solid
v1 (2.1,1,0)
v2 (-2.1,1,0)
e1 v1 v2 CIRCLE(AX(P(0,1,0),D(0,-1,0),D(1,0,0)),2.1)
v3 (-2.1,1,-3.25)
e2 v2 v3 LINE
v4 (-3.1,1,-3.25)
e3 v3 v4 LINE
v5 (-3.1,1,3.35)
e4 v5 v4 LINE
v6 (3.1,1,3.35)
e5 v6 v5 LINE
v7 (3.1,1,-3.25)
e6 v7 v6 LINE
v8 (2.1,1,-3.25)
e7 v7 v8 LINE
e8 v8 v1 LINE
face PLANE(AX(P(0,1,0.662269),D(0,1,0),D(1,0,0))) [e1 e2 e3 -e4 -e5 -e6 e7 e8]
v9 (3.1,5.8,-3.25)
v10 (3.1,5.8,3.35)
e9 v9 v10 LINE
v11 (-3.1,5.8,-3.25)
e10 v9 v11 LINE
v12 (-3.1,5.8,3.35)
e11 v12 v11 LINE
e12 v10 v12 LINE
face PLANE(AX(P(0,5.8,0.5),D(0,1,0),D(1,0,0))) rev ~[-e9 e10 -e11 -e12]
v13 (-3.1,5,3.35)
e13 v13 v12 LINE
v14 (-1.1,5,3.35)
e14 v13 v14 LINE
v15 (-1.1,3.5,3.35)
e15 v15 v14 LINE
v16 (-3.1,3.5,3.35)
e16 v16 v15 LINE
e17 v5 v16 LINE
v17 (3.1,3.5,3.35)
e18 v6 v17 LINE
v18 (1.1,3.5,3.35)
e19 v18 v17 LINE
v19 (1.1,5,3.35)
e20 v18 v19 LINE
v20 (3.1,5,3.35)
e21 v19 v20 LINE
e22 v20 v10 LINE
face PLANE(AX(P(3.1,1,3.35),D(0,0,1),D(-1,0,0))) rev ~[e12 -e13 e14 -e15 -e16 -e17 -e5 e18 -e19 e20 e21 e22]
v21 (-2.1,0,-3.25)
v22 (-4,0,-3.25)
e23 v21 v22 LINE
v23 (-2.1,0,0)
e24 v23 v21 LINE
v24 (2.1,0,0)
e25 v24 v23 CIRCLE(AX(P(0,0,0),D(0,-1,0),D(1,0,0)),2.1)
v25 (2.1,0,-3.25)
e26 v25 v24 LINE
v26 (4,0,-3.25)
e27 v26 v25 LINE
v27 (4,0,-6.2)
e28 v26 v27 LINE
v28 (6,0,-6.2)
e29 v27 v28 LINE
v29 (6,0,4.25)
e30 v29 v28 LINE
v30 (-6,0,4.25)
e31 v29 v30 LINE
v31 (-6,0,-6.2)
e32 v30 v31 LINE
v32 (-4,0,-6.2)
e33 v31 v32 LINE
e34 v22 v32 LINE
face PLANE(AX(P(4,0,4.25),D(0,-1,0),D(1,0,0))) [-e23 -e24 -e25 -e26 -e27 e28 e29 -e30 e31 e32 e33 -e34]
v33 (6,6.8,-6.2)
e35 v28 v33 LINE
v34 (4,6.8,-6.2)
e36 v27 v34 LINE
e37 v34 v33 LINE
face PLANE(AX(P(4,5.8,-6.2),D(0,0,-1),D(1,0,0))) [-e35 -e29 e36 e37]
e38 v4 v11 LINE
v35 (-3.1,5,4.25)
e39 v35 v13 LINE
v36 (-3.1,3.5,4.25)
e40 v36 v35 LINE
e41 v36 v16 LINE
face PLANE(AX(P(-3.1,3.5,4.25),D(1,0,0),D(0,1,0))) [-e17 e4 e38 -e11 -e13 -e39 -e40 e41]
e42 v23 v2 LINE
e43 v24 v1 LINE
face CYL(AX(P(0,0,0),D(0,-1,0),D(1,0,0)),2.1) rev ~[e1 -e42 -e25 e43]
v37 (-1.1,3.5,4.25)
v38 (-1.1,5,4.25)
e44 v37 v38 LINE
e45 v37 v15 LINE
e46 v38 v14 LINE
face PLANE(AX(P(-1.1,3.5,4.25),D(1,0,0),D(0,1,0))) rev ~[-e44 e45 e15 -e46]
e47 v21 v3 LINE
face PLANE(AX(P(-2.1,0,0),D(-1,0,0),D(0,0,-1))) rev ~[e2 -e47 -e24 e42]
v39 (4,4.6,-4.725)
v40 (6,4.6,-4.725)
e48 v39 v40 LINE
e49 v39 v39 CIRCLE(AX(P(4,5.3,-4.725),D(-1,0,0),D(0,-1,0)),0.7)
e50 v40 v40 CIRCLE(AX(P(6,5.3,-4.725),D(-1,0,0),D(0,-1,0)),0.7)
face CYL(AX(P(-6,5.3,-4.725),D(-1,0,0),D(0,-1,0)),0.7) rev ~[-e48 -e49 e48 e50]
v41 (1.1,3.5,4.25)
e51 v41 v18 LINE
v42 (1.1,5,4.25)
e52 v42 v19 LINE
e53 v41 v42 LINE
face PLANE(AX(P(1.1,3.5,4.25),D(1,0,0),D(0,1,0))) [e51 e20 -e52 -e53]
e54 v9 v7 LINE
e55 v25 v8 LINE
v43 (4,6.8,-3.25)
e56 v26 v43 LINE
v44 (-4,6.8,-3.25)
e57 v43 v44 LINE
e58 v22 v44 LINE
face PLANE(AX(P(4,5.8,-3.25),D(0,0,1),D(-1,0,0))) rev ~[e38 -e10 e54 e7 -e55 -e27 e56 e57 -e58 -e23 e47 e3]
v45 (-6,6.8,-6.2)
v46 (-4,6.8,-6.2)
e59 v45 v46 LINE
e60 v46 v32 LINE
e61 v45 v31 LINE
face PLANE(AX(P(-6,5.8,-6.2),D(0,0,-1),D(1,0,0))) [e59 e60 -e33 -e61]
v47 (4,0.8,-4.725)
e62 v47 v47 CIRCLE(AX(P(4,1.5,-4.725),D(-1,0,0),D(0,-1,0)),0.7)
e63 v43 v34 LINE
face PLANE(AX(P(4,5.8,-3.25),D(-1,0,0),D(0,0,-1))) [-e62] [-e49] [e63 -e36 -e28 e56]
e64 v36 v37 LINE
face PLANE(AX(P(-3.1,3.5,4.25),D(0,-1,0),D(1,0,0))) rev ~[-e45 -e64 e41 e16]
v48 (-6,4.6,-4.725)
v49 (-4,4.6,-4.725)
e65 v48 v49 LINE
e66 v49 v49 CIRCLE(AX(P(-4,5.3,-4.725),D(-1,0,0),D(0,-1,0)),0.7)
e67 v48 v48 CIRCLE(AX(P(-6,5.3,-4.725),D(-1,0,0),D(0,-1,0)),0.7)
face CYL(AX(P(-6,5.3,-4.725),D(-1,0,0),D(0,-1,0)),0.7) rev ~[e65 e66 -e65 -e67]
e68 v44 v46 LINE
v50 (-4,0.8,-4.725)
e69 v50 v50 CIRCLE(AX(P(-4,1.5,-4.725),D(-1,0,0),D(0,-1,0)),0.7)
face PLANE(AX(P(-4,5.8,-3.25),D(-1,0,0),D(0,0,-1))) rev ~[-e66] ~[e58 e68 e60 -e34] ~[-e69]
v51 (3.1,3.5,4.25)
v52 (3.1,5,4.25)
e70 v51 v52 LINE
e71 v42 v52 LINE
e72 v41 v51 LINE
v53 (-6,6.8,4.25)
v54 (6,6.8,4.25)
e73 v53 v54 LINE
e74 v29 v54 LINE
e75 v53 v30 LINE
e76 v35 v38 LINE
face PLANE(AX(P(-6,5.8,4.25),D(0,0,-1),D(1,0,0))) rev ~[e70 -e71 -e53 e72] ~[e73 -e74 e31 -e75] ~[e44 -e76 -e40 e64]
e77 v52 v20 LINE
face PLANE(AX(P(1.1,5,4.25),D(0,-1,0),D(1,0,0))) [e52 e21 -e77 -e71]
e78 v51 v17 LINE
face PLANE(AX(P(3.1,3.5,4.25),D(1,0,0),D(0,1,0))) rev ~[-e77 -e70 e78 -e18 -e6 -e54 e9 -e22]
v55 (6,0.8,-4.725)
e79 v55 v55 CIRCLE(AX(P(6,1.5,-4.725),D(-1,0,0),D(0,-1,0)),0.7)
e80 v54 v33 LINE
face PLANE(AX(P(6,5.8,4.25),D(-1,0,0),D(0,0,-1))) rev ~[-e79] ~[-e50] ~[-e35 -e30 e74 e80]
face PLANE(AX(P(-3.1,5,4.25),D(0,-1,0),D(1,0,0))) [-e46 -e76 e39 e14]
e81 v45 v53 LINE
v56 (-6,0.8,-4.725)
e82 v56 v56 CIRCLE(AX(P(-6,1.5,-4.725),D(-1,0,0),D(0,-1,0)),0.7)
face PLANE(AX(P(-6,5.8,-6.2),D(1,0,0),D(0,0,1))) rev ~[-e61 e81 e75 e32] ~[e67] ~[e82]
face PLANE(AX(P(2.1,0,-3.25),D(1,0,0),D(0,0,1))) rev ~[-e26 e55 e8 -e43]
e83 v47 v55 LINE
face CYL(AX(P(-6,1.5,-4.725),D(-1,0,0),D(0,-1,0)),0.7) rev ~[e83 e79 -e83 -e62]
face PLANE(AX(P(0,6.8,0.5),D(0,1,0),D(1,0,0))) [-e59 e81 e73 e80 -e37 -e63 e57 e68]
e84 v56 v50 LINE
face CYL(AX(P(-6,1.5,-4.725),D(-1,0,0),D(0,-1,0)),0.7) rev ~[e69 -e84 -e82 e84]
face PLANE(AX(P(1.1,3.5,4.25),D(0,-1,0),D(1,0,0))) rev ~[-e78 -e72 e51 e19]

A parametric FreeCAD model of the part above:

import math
import FreeCAD as App
import Part
import Sketcher

V = App.Vector
Q = App.Units.Quantity

doc = App.newDocument("Part")
params = doc.addObject("Spreadsheet::Sheet", "Params")
for row, (alias, value) in enumerate([
    ("sketch1_radius", "2.1 mm"),
    ("sketch1_width", "8 mm"),
    ("sketch1_height", "7.5 mm"),
    ("sketch1_height2", "3.25 mm"),
    ("pad1_length", "1 mm"),
    ("sketch2_width", "8 mm"),
    ("sketch2_width2", "0.9 mm"),
    ("sketch2_height", "7.5 mm"),
    ("sketch2_height2", "6.6 mm"),
    ("pad2_length", "4.8 mm"),
    ("sketch3_width", "2 mm"),
    ("sketch3_height", "5.8 mm"),
    ("pad3_length", "10.45 mm"),
    ("sketch4_width", "12 mm"),
    ("sketch4_width2", "2 mm"),
    ("sketch4_height", "10.45 mm"),
    ("sketch4_height2", "2.95 mm"),
    ("pad4_length", "1 mm"),
    ("sketch5_width", "2 mm"),
    ("sketch5_height", "1.5 mm"),
    ("sketch6_diameter", "1.4 mm"),
], start=1):
    params.set(f"A{row}", alias)
    params.set(f"B{row}", "=" + value)
    params.setAlias(f"B{row}", alias)

body = doc.addObject("PartDesign::Body", "Body")

# Sketch on XZ plane
sketch1 = body.newObject("Sketcher::SketchObject", "Sketch")
sketch1.AttachmentSupport = (doc.getObject("XZ_Plane"), [""])
sketch1.MapMode = "FlatFace"
sketch1.addGeometry(Part.LineSegment(V(-4, -3.25, 0), V(-4, 4.25, 0)), False)
sketch1.addGeometry(Part.LineSegment(V(-4, 4.25, 0), V(4, 4.25, 0)), False)
sketch1.addGeometry(Part.LineSegment(V(4, 4.25, 0), V(4, -3.25, 0)), False)
sketch1.addGeometry(Part.LineSegment(V(4, -3.25, 0), V(2.1, -3.25, 0)), False)
sketch1.addGeometry(Part.LineSegment(V(2.1, -3.25, 0), V(2.1, 0, 0)), False)
sketch1.addGeometry(Part.ArcOfCircle(Part.Circle(V(0, 0, 0), V(0, 0, 1), 2.1), math.radians(0), math.radians(180)), False)
sketch1.addGeometry(Part.LineSegment(V(-2.1, 0, 0), V(-2.1, -3.25, 0)), False)
sketch1.addGeometry(Part.LineSegment(V(-2.1, -3.25, 0), V(-4, -3.25, 0)), False)
sketch1.addConstraint(Sketcher.Constraint("Coincident", 0, 2, 1, 1))
sketch1.addConstraint(Sketcher.Constraint("Coincident", 1, 2, 2, 1))
sketch1.addConstraint(Sketcher.Constraint("Coincident", 2, 2, 3, 1))
sketch1.addConstraint(Sketcher.Constraint("Coincident", 3, 2, 4, 1))
sketch1.addConstraint(Sketcher.Constraint("Tangent", 4, 2, 5, 1))
sketch1.addConstraint(Sketcher.Constraint("Tangent", 5, 2, 6, 1))
sketch1.addConstraint(Sketcher.Constraint("Coincident", 6, 2, 7, 1))
sketch1.addConstraint(Sketcher.Constraint("Coincident", 7, 2, 0, 1))
sketch1.addConstraint(Sketcher.Constraint("Vertical", 0))
sketch1.addConstraint(Sketcher.Constraint("Horizontal", 1))
sketch1.addConstraint(Sketcher.Constraint("Vertical", 2))
sketch1.addConstraint(Sketcher.Constraint("Horizontal", 3))
sketch1.addConstraint(Sketcher.Constraint("Vertical", 4))
sketch1.addConstraint(Sketcher.Constraint("Vertical", 6))
sketch1.addConstraint(Sketcher.Constraint("Horizontal", 7))
sketch1.addConstraint(Sketcher.Constraint("Coincident", 5, 3, -1, 1))
sketch1.addConstraint(Sketcher.Constraint("Symmetric", 2, 2, 7, 2, -2))
sketch1.addConstraint(Sketcher.Constraint("Radius", 5, Q("2.1 mm")))
sketch1.addConstraint(Sketcher.Constraint("DistanceX", 1, 1, 1, 2, Q("8 mm")))
sketch1.addConstraint(Sketcher.Constraint("DistanceY", 0, 1, 0, 2, Q("7.5 mm")))
sketch1.addConstraint(Sketcher.Constraint("DistanceY", 4, 1, 4, 2, Q("3.25 mm")))
sketch1.setExpression("Constraints[17]", "Params.sketch1_radius")
sketch1.setExpression("Constraints[18]", "Params.sketch1_width")
sketch1.setExpression("Constraints[19]", "Params.sketch1_height")
sketch1.setExpression("Constraints[20]", "Params.sketch1_height2")
pad1 = body.newObject("PartDesign::Pad", "Pad")
pad1.Profile = sketch1
pad1.setExpression("Length", "Params.pad1_length")
pad1.Reversed = True

# Sketch on XZ plane
sketch2 = body.newObject("Sketcher::SketchObject", "Sketch001")
sketch2.AttachmentSupport = (doc.getObject("XZ_Plane"), [""])
sketch2.MapMode = "FlatFace"
sketch2.AttachmentOffset = App.Placement(V(0, 0, -1), App.Rotation())
sketch2.addGeometry(Part.LineSegment(V(-3.1, -3.25, 0), V(-4, -3.25, 0)), False)
sketch2.addGeometry(Part.LineSegment(V(-4, -3.25, 0), V(-4, 4.25, 0)), False)
sketch2.addGeometry(Part.LineSegment(V(-4, 4.25, 0), V(4, 4.25, 0)), False)
sketch2.addGeometry(Part.LineSegment(V(4, 4.25, 0), V(4, -3.25, 0)), False)
sketch2.addGeometry(Part.LineSegment(V(4, -3.25, 0), V(3.1, -3.25, 0)), False)
sketch2.addGeometry(Part.LineSegment(V(3.1, -3.25, 0), V(3.1, 3.35, 0)), False)
sketch2.addGeometry(Part.LineSegment(V(3.1, 3.35, 0), V(-3.1, 3.35, 0)), False)
sketch2.addGeometry(Part.LineSegment(V(-3.1, 3.35, 0), V(-3.1, -3.25, 0)), False)
sketch2.addConstraint(Sketcher.Constraint("Coincident", 0, 2, 1, 1))
sketch2.addConstraint(Sketcher.Constraint("Coincident", 1, 2, 2, 1))
sketch2.addConstraint(Sketcher.Constraint("Coincident", 2, 2, 3, 1))
sketch2.addConstraint(Sketcher.Constraint("Coincident", 3, 2, 4, 1))
sketch2.addConstraint(Sketcher.Constraint("Coincident", 4, 2, 5, 1))
sketch2.addConstraint(Sketcher.Constraint("Coincident", 5, 2, 6, 1))
sketch2.addConstraint(Sketcher.Constraint("Coincident", 6, 2, 7, 1))
sketch2.addConstraint(Sketcher.Constraint("Coincident", 7, 2, 0, 1))
sketch2.addConstraint(Sketcher.Constraint("Horizontal", 0))
sketch2.addConstraint(Sketcher.Constraint("Vertical", 1))
sketch2.addConstraint(Sketcher.Constraint("Horizontal", 2))
sketch2.addConstraint(Sketcher.Constraint("Vertical", 3))
sketch2.addConstraint(Sketcher.Constraint("Horizontal", 4))
sketch2.addConstraint(Sketcher.Constraint("Vertical", 5))
sketch2.addConstraint(Sketcher.Constraint("Horizontal", 6))
sketch2.addConstraint(Sketcher.Constraint("Vertical", 7))
sketch2.addConstraint(Sketcher.Constraint("Symmetric", 0, 2, 3, 2, -2))
sketch2.addConstraint(Sketcher.Constraint("Equal", 0, 4))
sketch2.addConstraint(Sketcher.Constraint("DistanceX", 2, 1, 2, 2, Q("8 mm")))
sketch2.addConstraint(Sketcher.Constraint("DistanceX", 0, 2, 0, 1, Q("0.9 mm")))
sketch2.addConstraint(Sketcher.Constraint("DistanceY", 1, 1, 1, 2, Q("7.5 mm")))
sketch2.addConstraint(Sketcher.Constraint("DistanceY", 5, 1, 5, 2, Q("6.6 mm")))
sketch2.addConstraint(Sketcher.Constraint("DistanceY", 0, 2, -1, 1, Q("3.25 mm")))
sketch2.setExpression("Constraints[18]", "Params.sketch2_width")
sketch2.setExpression("Constraints[19]", "Params.sketch2_width2")
sketch2.setExpression("Constraints[20]", "Params.sketch2_height")
sketch2.setExpression("Constraints[21]", "Params.sketch2_height2")
pad2 = body.newObject("PartDesign::Pad", "Pad001")
pad2.Profile = sketch2
pad2.setExpression("Length", "Params.pad2_length")
pad2.Reversed = True

# Sketch on XY plane
sketch3 = body.newObject("Sketcher::SketchObject", "Sketch002")
sketch3.AttachmentSupport = (doc.getObject("XY_Plane"), [""])
sketch3.MapMode = "FlatFace"
sketch3.AttachmentOffset = App.Placement(V(0, 0, 4.25), App.Rotation())
sketch3.addGeometry(Part.LineSegment(V(4, 5.8, 0), V(4, 0, 0)), False)
sketch3.addGeometry(Part.LineSegment(V(4, 0, 0), V(6, 0, 0)), False)
sketch3.addGeometry(Part.LineSegment(V(6, 0, 0), V(6, 5.8, 0)), False)
sketch3.addGeometry(Part.LineSegment(V(6, 5.8, 0), V(4, 5.8, 0)), False)
sketch3.addGeometry(Part.LineSegment(V(-6, 5.8, 0), V(-6, 0, 0)), False)
sketch3.addGeometry(Part.LineSegment(V(-6, 0, 0), V(-4, 0, 0)), False)
sketch3.addGeometry(Part.LineSegment(V(-4, 0, 0), V(-4, 5.8, 0)), False)
sketch3.addGeometry(Part.LineSegment(V(-4, 5.8, 0), V(-6, 5.8, 0)), False)
sketch3.addConstraint(Sketcher.Constraint("Coincident", 0, 2, 1, 1))
sketch3.addConstraint(Sketcher.Constraint("Coincident", 1, 2, 2, 1))
sketch3.addConstraint(Sketcher.Constraint("Coincident", 2, 2, 3, 1))
sketch3.addConstraint(Sketcher.Constraint("Coincident", 3, 2, 0, 1))
sketch3.addConstraint(Sketcher.Constraint("Coincident", 4, 2, 5, 1))
sketch3.addConstraint(Sketcher.Constraint("Coincident", 5, 2, 6, 1))
sketch3.addConstraint(Sketcher.Constraint("Coincident", 6, 2, 7, 1))
sketch3.addConstraint(Sketcher.Constraint("Coincident", 7, 2, 4, 1))
sketch3.addConstraint(Sketcher.Constraint("Vertical", 0))
sketch3.addConstraint(Sketcher.Constraint("Horizontal", 1))
sketch3.addConstraint(Sketcher.Constraint("Vertical", 2))
sketch3.addConstraint(Sketcher.Constraint("Horizontal", 3))
sketch3.addConstraint(Sketcher.Constraint("Vertical", 4))
sketch3.addConstraint(Sketcher.Constraint("Horizontal", 5))
sketch3.addConstraint(Sketcher.Constraint("Vertical", 6))
sketch3.addConstraint(Sketcher.Constraint("Horizontal", 7))
sketch3.addConstraint(Sketcher.Constraint("Symmetric", 1, 2, 4, 2, -1, 1))
sketch3.addConstraint(Sketcher.Constraint("Symmetric", 0, 2, 5, 2, -2))
sketch3.addConstraint(Sketcher.Constraint("Horizontal", 3, 2, 6, 2))
sketch3.addConstraint(Sketcher.Constraint("DistanceX", 1, 1, 1, 2, Q("2 mm")))
sketch3.addConstraint(Sketcher.Constraint("DistanceY", 0, 2, 0, 1, Q("5.8 mm")))
sketch3.addConstraint(Sketcher.Constraint("DistanceX", -1, 1, 0, 2, Q("4 mm")))
sketch3.setExpression("Constraints[19]", "Params.sketch3_width")
sketch3.setExpression("Constraints[20]", "Params.sketch3_height")
pad3 = body.newObject("PartDesign::Pad", "Pad002")
pad3.Profile = sketch3
pad3.setExpression("Length", "Params.pad3_length")
pad3.Reversed = True

# Sketch on XZ plane
sketch4 = body.newObject("Sketcher::SketchObject", "Sketch003")
sketch4.AttachmentSupport = (doc.getObject("XZ_Plane"), [""])
sketch4.MapMode = "FlatFace"
sketch4.AttachmentOffset = App.Placement(V(0, 0, -5.8), App.Rotation())
sketch4.addGeometry(Part.LineSegment(V(-6, 4.25, 0), V(6, 4.25, 0)), False)
sketch4.addGeometry(Part.LineSegment(V(6, 4.25, 0), V(6, -6.2, 0)), False)
sketch4.addGeometry(Part.LineSegment(V(6, -6.2, 0), V(4, -6.2, 0)), False)
sketch4.addGeometry(Part.LineSegment(V(4, -6.2, 0), V(4, -3.25, 0)), False)
sketch4.addGeometry(Part.LineSegment(V(4, -3.25, 0), V(-4, -3.25, 0)), False)
sketch4.addGeometry(Part.LineSegment(V(-4, -3.25, 0), V(-4, -6.2, 0)), False)
sketch4.addGeometry(Part.LineSegment(V(-4, -6.2, 0), V(-6, -6.2, 0)), False)
sketch4.addGeometry(Part.LineSegment(V(-6, -6.2, 0), V(-6, 4.25, 0)), False)
sketch4.addConstraint(Sketcher.Constraint("Coincident", 0, 2, 1, 1))
sketch4.addConstraint(Sketcher.Constraint("Coincident", 1, 2, 2, 1))
sketch4.addConstraint(Sketcher.Constraint("Coincident", 2, 2, 3, 1))
sketch4.addConstraint(Sketcher.Constraint("Coincident", 3, 2, 4, 1))
sketch4.addConstraint(Sketcher.Constraint("Coincident", 4, 2, 5, 1))
sketch4.addConstraint(Sketcher.Constraint("Coincident", 5, 2, 6, 1))
sketch4.addConstraint(Sketcher.Constraint("Coincident", 6, 2, 7, 1))
sketch4.addConstraint(Sketcher.Constraint("Coincident", 7, 2, 0, 1))
sketch4.addConstraint(Sketcher.Constraint("Horizontal", 0))
sketch4.addConstraint(Sketcher.Constraint("Vertical", 1))
sketch4.addConstraint(Sketcher.Constraint("Horizontal", 2))
sketch4.addConstraint(Sketcher.Constraint("Vertical", 3))
sketch4.addConstraint(Sketcher.Constraint("Horizontal", 4))
sketch4.addConstraint(Sketcher.Constraint("Vertical", 5))
sketch4.addConstraint(Sketcher.Constraint("Horizontal", 6))
sketch4.addConstraint(Sketcher.Constraint("Vertical", 7))
sketch4.addConstraint(Sketcher.Constraint("Symmetric", 2, 2, 5, 2, -2))
sketch4.addConstraint(Sketcher.Constraint("Equal", 2, 6))
sketch4.addConstraint(Sketcher.Constraint("DistanceX", 0, 1, 0, 2, Q("12 mm")))
sketch4.addConstraint(Sketcher.Constraint("DistanceX", 2, 2, 2, 1, Q("2 mm")))
sketch4.addConstraint(Sketcher.Constraint("DistanceY", 1, 2, 1, 1, Q("10.45 mm")))
sketch4.addConstraint(Sketcher.Constraint("DistanceY", 3, 1, 3, 2, Q("2.95 mm")))
sketch4.addConstraint(Sketcher.Constraint("DistanceY", 1, 2, -1, 1, Q("6.2 mm")))
sketch4.setExpression("Constraints[18]", "Params.sketch4_width")
sketch4.setExpression("Constraints[19]", "Params.sketch4_width2")
sketch4.setExpression("Constraints[20]", "Params.sketch4_height")
sketch4.setExpression("Constraints[21]", "Params.sketch4_height2")
pad4 = body.newObject("PartDesign::Pad", "Pad003")
pad4.Profile = sketch4
pad4.setExpression("Length", "Params.pad4_length")
pad4.Reversed = True

# Sketch on XY plane
sketch5 = body.newObject("Sketcher::SketchObject", "Sketch004")
sketch5.AttachmentSupport = (doc.getObject("XY_Plane"), [""])
sketch5.MapMode = "FlatFace"
sketch5.AttachmentOffset = App.Placement(V(0, 0, 4.25), App.Rotation())
sketch5.addGeometry(Part.LineSegment(V(-3.1, 5, 0), V(-3.1, 3.5, 0)), False)
sketch5.addGeometry(Part.LineSegment(V(-3.1, 3.5, 0), V(-1.1, 3.5, 0)), False)
sketch5.addGeometry(Part.LineSegment(V(-1.1, 3.5, 0), V(-1.1, 5, 0)), False)
sketch5.addGeometry(Part.LineSegment(V(-1.1, 5, 0), V(-3.1, 5, 0)), False)
sketch5.addGeometry(Part.LineSegment(V(1.1, 5, 0), V(1.1, 3.5, 0)), False)
sketch5.addGeometry(Part.LineSegment(V(1.1, 3.5, 0), V(3.1, 3.5, 0)), False)
sketch5.addGeometry(Part.LineSegment(V(3.1, 3.5, 0), V(3.1, 5, 0)), False)
sketch5.addGeometry(Part.LineSegment(V(3.1, 5, 0), V(1.1, 5, 0)), False)
sketch5.addConstraint(Sketcher.Constraint("Coincident", 0, 2, 1, 1))
sketch5.addConstraint(Sketcher.Constraint("Coincident", 1, 2, 2, 1))
sketch5.addConstraint(Sketcher.Constraint("Coincident", 2, 2, 3, 1))
sketch5.addConstraint(Sketcher.Constraint("Coincident", 3, 2, 0, 1))
sketch5.addConstraint(Sketcher.Constraint("Coincident", 4, 2, 5, 1))
sketch5.addConstraint(Sketcher.Constraint("Coincident", 5, 2, 6, 1))
sketch5.addConstraint(Sketcher.Constraint("Coincident", 6, 2, 7, 1))
sketch5.addConstraint(Sketcher.Constraint("Coincident", 7, 2, 4, 1))
sketch5.addConstraint(Sketcher.Constraint("Vertical", 0))
sketch5.addConstraint(Sketcher.Constraint("Horizontal", 1))
sketch5.addConstraint(Sketcher.Constraint("Vertical", 2))
sketch5.addConstraint(Sketcher.Constraint("Horizontal", 3))
sketch5.addConstraint(Sketcher.Constraint("Vertical", 4))
sketch5.addConstraint(Sketcher.Constraint("Horizontal", 5))
sketch5.addConstraint(Sketcher.Constraint("Vertical", 6))
sketch5.addConstraint(Sketcher.Constraint("Horizontal", 7))
sketch5.addConstraint(Sketcher.Constraint("Symmetric", 1, 2, 4, 2, -2))
sketch5.addConstraint(Sketcher.Constraint("Symmetric", 3, 2, 6, 2, -2))
sketch5.addConstraint(Sketcher.Constraint("DistanceX", 1, 1, 1, 2, Q("2 mm")))
sketch5.addConstraint(Sketcher.Constraint("DistanceY", 0, 2, 0, 1, Q("1.5 mm")))
sketch5.addConstraint(Sketcher.Constraint("DistanceY", -1, 1, 2, 2, Q("5 mm")))
sketch5.addConstraint(Sketcher.Constraint("DistanceX", 0, 2, -1, 1, Q("3.1 mm")))
sketch5.setExpression("Constraints[18]", "Params.sketch5_width")
sketch5.setExpression("Constraints[19]", "Params.sketch5_height")
pocket1 = body.newObject("PartDesign::Pocket", "Pocket")
pocket1.Profile = sketch5
pocket1.Type = "ThroughAll"

# Sketch on YZ plane
sketch6 = body.newObject("Sketcher::SketchObject", "Sketch005")
sketch6.AttachmentSupport = (doc.getObject("YZ_Plane"), [""])
sketch6.MapMode = "FlatFace"
sketch6.AttachmentOffset = App.Placement(V(0, 0, -6), App.Rotation())
sketch6.addGeometry(Part.Circle(V(5.3, -4.725, 0), V(0, 0, 1), 0.7), False)
sketch6.addGeometry(Part.Circle(V(1.5, -4.725, 0), V(0, 0, 1), 0.7), False)
sketch6.addConstraint(Sketcher.Constraint("Equal", 0, 1))
sketch6.addConstraint(Sketcher.Constraint("Horizontal", 0, 3, 1, 3))
sketch6.addConstraint(Sketcher.Constraint("Diameter", 0, Q("1.4 mm")))
sketch6.addConstraint(Sketcher.Constraint("DistanceX", -1, 1, 0, 3, Q("5.3 mm")))
sketch6.addConstraint(Sketcher.Constraint("DistanceX", -1, 1, 1, 3, Q("1.5 mm")))
sketch6.addConstraint(Sketcher.Constraint("DistanceY", 0, 3, -1, 1, Q("4.725 mm")))
sketch6.setExpression("Constraints[2]", "Params.sketch6_diameter")
pocket2 = body.newObject("PartDesign::Pocket", "Pocket001")
pocket2.Profile = sketch6
pocket2.Type = "ThroughAll"
pocket2.Reversed = True

doc.recompute()
